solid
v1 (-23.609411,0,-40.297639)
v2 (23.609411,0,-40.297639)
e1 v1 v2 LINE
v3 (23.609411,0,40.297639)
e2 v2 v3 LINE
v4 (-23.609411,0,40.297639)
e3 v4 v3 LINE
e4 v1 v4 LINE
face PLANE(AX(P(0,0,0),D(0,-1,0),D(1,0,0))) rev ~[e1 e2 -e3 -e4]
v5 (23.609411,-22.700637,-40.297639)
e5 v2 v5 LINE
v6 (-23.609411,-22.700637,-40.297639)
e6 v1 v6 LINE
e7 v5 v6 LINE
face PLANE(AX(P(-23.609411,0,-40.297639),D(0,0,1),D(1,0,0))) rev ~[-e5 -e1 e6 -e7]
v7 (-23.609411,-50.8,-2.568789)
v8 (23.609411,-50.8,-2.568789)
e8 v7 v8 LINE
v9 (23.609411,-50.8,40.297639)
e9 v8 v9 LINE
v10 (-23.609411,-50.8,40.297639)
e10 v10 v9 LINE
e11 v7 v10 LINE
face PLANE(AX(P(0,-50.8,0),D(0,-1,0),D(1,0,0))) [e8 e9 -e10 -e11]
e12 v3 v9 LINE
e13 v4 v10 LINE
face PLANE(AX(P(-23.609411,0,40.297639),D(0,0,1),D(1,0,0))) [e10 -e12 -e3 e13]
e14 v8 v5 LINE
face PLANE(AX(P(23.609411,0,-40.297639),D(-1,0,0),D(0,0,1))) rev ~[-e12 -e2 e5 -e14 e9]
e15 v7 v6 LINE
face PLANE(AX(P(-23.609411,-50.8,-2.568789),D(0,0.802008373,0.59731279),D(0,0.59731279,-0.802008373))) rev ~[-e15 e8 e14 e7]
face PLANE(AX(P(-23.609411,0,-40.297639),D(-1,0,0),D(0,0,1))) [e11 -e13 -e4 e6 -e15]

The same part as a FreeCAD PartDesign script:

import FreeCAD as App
import Part
import Sketcher
from FreeCAD import Vector
Q = App.Units.Quantity


def add_polygon(sketch, points):
    """Adds a closed chain of lines whose ends are joined by coincident constraints."""
    first, n = sketch.GeometryCount, len(points)
    for a, b in zip(points, points[1:] + points[:1]):
        sketch.addGeometry(Part.LineSegment(App.Vector(*a, 0), App.Vector(*b, 0)), False)
    for i in range(n):
        sketch.addConstraint(Sketcher.Constraint("Coincident", first + i, 2, first + (i + 1) % n, 1))

doc = App.newDocument("Part")
body = doc.addObject("PartDesign::Body", "Body")

# Sketch on XZ plane
sketch1 = body.newObject("Sketcher::SketchObject", "Sketch")
sketch1.AttachmentSupport = (doc.getObject("XZ_Plane"), [""])
sketch1.MapMode = "FlatFace"
add_polygon(sketch1, [(-24, 40), (-24, -40), (24, -40), (24, 40)])  # lines 0-3
sketch1.addConstraint(Sketcher.Constraint("Vertical", 0))
sketch1.addConstraint(Sketcher.Constraint("Horizontal", 1))
sketch1.addConstraint(Sketcher.Constraint("Vertical", 2))
sketch1.addConstraint(Sketcher.Constraint("Horizontal", 3))
sketch1.addConstraint(Sketcher.Constraint("Symmetric", 0, 2, 2, 2, -1, 1))
sketch1.addConstraint(Sketcher.Constraint("DistanceX", 1, 1, 1, 2, 47.218822))
sketch1.addConstraint(Sketcher.Constraint("DistanceY", 0, 2, 0, 1, 80.595278))
pad1 = body.newObject("PartDesign::Pad", "Pad")
pad1.Profile = sketch1
pad1.Length = Q("2 in")

# Sketch on YZ plane
sketch2 = body.newObject("Sketcher::SketchObject", "Sketch001")
sketch2.AttachmentSupport = (doc.getObject("YZ_Plane"), [""])
sketch2.MapMode = "FlatFace"
sketch2.AttachmentOffset = App.Placement(Vector(0, 0, -23.609411), App.Rotation())
add_polygon(sketch2, [(-59, 2), (-51, -3), (-16, -49), (-63, -49)])  # lines 0-3
sketch2.addConstraint(Sketcher.Constraint("Horizontal", 2))
sketch2.addConstraint(Sketcher.Constraint("DistanceX", 0, 2, -1, 1, Q("2 in")))
sketch2.addConstraint(Sketcher.Constraint("DistanceY", 1, 2, 0, 2, 46.4007))
sketch2.addConstraint(Sketcher.Constraint("Distance", 1, 57.85563))
sketch2.addConstraint(Sketcher.Constraint("DistanceX", 2, 2, 2, 1, 46.838077))
sketch2.addConstraint(Sketcher.Constraint("DistanceY", 0, 2, -1, 1, 2.568789))
sketch2.addConstraint(Sketcher.Constraint("DistanceX", 3, 2, 1, 2, 43.19588))
sketch2.addConstraint(Sketcher.Constraint("Distance", 0, 9.635497))
pocket1 = body.newObject("PartDesign::Pocket", "Pocket")
pocket1.Profile = sketch2
pocket1.Type = "ThroughAll"
pocket1.Reversed = True

doc.recompute()
